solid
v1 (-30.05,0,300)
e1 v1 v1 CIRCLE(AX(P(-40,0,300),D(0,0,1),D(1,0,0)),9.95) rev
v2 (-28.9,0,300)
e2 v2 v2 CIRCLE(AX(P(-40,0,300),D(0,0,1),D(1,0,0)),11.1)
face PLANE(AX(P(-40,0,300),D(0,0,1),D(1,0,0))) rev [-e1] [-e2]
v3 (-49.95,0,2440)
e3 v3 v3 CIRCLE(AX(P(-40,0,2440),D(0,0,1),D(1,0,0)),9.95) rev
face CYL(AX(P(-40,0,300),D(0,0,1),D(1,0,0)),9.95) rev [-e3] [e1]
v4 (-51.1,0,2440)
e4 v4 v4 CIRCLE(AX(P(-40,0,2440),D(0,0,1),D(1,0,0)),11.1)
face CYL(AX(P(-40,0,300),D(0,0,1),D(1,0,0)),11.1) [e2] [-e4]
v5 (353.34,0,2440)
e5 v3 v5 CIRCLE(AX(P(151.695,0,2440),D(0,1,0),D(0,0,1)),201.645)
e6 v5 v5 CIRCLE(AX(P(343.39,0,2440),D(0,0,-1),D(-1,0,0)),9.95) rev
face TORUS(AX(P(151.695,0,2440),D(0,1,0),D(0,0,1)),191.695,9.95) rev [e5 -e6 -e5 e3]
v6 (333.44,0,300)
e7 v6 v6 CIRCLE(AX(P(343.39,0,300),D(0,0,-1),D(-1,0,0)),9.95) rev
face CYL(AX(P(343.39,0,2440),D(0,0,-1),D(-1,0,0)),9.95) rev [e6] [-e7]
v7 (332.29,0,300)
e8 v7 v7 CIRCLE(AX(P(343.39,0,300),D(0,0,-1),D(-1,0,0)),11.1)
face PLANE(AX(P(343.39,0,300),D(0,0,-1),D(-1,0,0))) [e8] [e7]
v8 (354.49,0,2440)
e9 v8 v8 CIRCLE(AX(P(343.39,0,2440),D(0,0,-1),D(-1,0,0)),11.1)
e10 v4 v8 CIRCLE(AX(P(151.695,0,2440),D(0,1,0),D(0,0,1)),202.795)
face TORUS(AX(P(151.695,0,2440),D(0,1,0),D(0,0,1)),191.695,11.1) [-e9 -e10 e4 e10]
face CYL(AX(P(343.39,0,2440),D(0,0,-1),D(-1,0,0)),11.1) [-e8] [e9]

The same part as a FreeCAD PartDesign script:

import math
import FreeCAD as App
import Part
import Sketcher

V = App.Vector
Q = App.Units.Quantity

doc = App.newDocument("Part")
body = doc.addObject("PartDesign::Body", "Body")

# Sketch on XY plane
sketch1 = body.newObject("Sketcher::SketchObject", "Sketch")
sketch1.AttachmentSupport = (doc.getObject("XY_Plane"), [""])
sketch1.MapMode = "FlatFace"
sketch1.AttachmentOffset = App.Placement(V(0, 0, 300), App.Rotation())
sketch1.addGeometry([
    Part.Circle(V(343, 0, 0), V(0, 0, 1), 11),
    Part.Circle(V(343, 0, 0), V(0, 0, 1), 10),
], False)
sketch1.addConstraint([
    Sketcher.Constraint("Coincident", 1, 3, 0, 3),
    Sketcher.Constraint("PointOnObject", 0, 3, -1),
    Sketcher.Constraint("Diameter", 0, Q("22.2 mm")),
    Sketcher.Constraint("Diameter", 1, Q("19.9 mm")),
    Sketcher.Constraint("DistanceX", -1, 1, 0, 3, Q("343.39 mm")),
])

# Sketch on XZ plane
sketch2 = body.newObject("Sketcher::SketchObject", "Sketch001")
sketch2.AttachmentSupport = (doc.getObject("XZ_Plane"), [""])
sketch2.MapMode = "FlatFace"
sketch2.addGeometry([
    Part.LineSegment(V(343, 300, 0), V(343, 2440, 0)),
    Part.ArcOfCircle(Part.Circle(V(152, 2440, 0), V(0, 0, 1), 192), math.radians(0), math.radians(180)),
    Part.LineSegment(V(-40, 2440, 0), V(-40, 300, 0)),
], False)
sketch2.addConstraint([
    Sketcher.Constraint("Tangent", 0, 2, 1, 1),
    Sketcher.Constraint("Tangent", 1, 2, 2, 1),
    Sketcher.Constraint("Vertical", 0),
    Sketcher.Constraint("Vertical", 2),
    Sketcher.Constraint("Horizontal", 0, 1, 2, 2),
    Sketcher.Constraint("DistanceY", 0, 1, 0, 2, Q("2140 mm")),
    Sketcher.Constraint("DistanceY", -1, 1, 1, 3, Q("2440 mm")),
    Sketcher.Constraint("DistanceX", 1, 2, -1, 1, Q("40 mm")),
    Sketcher.Constraint("Radius", 1, Q("191.695 mm")),
])
doc.recompute()

additivepipe = body.newObject("PartDesign::AdditivePipe", "AdditivePipe")
additivepipe.Profile = sketch1
additivepipe.Spine = (sketch2, ["Edge1", "Edge2", "Edge3"])

doc.recompute()
